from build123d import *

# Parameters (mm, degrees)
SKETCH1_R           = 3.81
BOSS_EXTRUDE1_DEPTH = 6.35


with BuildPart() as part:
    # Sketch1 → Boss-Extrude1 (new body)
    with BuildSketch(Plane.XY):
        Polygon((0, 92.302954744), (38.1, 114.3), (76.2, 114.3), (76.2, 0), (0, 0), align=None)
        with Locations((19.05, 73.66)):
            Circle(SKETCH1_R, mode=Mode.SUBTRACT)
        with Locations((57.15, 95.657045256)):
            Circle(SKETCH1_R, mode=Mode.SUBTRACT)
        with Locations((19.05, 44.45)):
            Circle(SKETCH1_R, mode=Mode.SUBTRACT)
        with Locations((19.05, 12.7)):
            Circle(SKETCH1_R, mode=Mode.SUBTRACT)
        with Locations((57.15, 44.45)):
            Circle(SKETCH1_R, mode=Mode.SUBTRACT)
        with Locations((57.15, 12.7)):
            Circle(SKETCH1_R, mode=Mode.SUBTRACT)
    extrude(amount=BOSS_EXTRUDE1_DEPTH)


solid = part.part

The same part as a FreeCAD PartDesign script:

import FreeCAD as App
import Part
import Sketcher
Q = App.Units.Quantity


def add_polygon(sketch, points):
    """Adds a closed chain of lines whose ends are joined by coincident constraints."""
    first, n = sketch.GeometryCount, len(points)
    for a, b in zip(points, points[1:] + points[:1]):
        sketch.addGeometry(Part.LineSegment(App.Vector(*a, 0), App.Vector(*b, 0)), False)
    for i in range(n):
        sketch.addConstraint(Sketcher.Constraint("Coincident", first + i, 2, first + (i + 1) % n, 1))

doc = App.newDocument("Part")
body = doc.addObject("PartDesign::Body", "Body")

sketch1 = doc.addObject("Sketcher::SketchObject", "Sketch")
body.addObject(sketch1)
sketch1.AttachmentSupport = (doc.XY_Plane, [""])
sketch1.MapMode = "FlatFace"
add_polygon(sketch1, [(38.1, 114.3), (0, 92.3), (0, 0), (76.2, 0), (76.2, 114.3)])
sketch1.addGeometry(Part.Circle(App.Vector(57.1, 12.7, 0), App.Vector(0, 0, 1), 3.8), False)
sketch1.addGeometry(Part.Circle(App.Vector(57.1, 44.5, 0), App.Vector(0, 0, 1), 3.8), False)
sketch1.addGeometry(Part.Circle(App.Vector(19.1, 12.7, 0), App.Vector(0, 0, 1), 3.8), False)
sketch1.addGeometry(Part.Circle(App.Vector(19.1, 44.5, 0), App.Vector(0, 0, 1), 3.8), False)
sketch1.addGeometry(Part.Circle(App.Vector(57.1, 95.7, 0), App.Vector(0, 0, 1), 3.8), False)
sketch1.addGeometry(Part.Circle(App.Vector(19.1, 73.7, 0), App.Vector(0, 0, 1), 3.8), False)
sketch1.addConstraint([
    Sketcher.Constraint("Vertical", 1),
    Sketcher.Constraint("Horizontal", 2),
    Sketcher.Constraint("Vertical", 3),
    Sketcher.Constraint("Horizontal", 4),
    Sketcher.Constraint("Coincident", 1, 2, -1, 1),
    Sketcher.Constraint("Equal", 5, 6),
    Sketcher.Constraint("Equal", 6, 7),
    Sketcher.Constraint("Equal", 7, 8),
    Sketcher.Constraint("Equal", 8, 9),
    Sketcher.Constraint("Equal", 9, 10),
    Sketcher.Constraint("Horizontal", 5, 3, 7, 3),
    Sketcher.Constraint("Horizontal", 6, 3, 8, 3),
    Sketcher.Constraint("Vertical", 5, 3, 6, 3),
    Sketcher.Constraint("Vertical", 7, 3, 8, 3),
    Sketcher.Constraint("Vertical", 6, 3, 9, 3),
    Sketcher.Constraint("Vertical", 8, 3, 10, 3),
    Sketcher.Constraint("Diameter", 5, Q("0.3 in")),
    Sketcher.Constraint("DistanceX", 2, 1, 2, 2, Q("3 in")),
    Sketcher.Constraint("DistanceX", 4, 2, 4, 1, Q("1.5 in")),
    Sketcher.Constraint("DistanceY", 3, 1, 3, 2, Q("4.5 in")),
    Sketcher.Constraint("Angle", 0, Q("-150 deg")),
    Sketcher.Constraint("DistanceY", -1, 1, 5, 3, Q("0.5 in")),
    Sketcher.Constraint("DistanceY", -1, 1, 10, 3, Q("2.9 in")),
    Sketcher.Constraint("DistanceX", 7, 3, 5, 3, Q("1.5 in")),
    Sketcher.Constraint("DistanceX", -1, 1, 5, 3, Q("2.25 in")),
    Sketcher.Constraint("DistanceY", -1, 1, 6, 3, Q("1.75 in")),
    Sketcher.Constraint("DistanceY", 0, 2, 9, 3, 3.354091),
])
pad1 = doc.addObject("PartDesign::Pad", "Pad")
body.addObject(pad1)
pad1.Profile = sketch1
pad1.Length = Q("0.25 in")

doc.recompute()
